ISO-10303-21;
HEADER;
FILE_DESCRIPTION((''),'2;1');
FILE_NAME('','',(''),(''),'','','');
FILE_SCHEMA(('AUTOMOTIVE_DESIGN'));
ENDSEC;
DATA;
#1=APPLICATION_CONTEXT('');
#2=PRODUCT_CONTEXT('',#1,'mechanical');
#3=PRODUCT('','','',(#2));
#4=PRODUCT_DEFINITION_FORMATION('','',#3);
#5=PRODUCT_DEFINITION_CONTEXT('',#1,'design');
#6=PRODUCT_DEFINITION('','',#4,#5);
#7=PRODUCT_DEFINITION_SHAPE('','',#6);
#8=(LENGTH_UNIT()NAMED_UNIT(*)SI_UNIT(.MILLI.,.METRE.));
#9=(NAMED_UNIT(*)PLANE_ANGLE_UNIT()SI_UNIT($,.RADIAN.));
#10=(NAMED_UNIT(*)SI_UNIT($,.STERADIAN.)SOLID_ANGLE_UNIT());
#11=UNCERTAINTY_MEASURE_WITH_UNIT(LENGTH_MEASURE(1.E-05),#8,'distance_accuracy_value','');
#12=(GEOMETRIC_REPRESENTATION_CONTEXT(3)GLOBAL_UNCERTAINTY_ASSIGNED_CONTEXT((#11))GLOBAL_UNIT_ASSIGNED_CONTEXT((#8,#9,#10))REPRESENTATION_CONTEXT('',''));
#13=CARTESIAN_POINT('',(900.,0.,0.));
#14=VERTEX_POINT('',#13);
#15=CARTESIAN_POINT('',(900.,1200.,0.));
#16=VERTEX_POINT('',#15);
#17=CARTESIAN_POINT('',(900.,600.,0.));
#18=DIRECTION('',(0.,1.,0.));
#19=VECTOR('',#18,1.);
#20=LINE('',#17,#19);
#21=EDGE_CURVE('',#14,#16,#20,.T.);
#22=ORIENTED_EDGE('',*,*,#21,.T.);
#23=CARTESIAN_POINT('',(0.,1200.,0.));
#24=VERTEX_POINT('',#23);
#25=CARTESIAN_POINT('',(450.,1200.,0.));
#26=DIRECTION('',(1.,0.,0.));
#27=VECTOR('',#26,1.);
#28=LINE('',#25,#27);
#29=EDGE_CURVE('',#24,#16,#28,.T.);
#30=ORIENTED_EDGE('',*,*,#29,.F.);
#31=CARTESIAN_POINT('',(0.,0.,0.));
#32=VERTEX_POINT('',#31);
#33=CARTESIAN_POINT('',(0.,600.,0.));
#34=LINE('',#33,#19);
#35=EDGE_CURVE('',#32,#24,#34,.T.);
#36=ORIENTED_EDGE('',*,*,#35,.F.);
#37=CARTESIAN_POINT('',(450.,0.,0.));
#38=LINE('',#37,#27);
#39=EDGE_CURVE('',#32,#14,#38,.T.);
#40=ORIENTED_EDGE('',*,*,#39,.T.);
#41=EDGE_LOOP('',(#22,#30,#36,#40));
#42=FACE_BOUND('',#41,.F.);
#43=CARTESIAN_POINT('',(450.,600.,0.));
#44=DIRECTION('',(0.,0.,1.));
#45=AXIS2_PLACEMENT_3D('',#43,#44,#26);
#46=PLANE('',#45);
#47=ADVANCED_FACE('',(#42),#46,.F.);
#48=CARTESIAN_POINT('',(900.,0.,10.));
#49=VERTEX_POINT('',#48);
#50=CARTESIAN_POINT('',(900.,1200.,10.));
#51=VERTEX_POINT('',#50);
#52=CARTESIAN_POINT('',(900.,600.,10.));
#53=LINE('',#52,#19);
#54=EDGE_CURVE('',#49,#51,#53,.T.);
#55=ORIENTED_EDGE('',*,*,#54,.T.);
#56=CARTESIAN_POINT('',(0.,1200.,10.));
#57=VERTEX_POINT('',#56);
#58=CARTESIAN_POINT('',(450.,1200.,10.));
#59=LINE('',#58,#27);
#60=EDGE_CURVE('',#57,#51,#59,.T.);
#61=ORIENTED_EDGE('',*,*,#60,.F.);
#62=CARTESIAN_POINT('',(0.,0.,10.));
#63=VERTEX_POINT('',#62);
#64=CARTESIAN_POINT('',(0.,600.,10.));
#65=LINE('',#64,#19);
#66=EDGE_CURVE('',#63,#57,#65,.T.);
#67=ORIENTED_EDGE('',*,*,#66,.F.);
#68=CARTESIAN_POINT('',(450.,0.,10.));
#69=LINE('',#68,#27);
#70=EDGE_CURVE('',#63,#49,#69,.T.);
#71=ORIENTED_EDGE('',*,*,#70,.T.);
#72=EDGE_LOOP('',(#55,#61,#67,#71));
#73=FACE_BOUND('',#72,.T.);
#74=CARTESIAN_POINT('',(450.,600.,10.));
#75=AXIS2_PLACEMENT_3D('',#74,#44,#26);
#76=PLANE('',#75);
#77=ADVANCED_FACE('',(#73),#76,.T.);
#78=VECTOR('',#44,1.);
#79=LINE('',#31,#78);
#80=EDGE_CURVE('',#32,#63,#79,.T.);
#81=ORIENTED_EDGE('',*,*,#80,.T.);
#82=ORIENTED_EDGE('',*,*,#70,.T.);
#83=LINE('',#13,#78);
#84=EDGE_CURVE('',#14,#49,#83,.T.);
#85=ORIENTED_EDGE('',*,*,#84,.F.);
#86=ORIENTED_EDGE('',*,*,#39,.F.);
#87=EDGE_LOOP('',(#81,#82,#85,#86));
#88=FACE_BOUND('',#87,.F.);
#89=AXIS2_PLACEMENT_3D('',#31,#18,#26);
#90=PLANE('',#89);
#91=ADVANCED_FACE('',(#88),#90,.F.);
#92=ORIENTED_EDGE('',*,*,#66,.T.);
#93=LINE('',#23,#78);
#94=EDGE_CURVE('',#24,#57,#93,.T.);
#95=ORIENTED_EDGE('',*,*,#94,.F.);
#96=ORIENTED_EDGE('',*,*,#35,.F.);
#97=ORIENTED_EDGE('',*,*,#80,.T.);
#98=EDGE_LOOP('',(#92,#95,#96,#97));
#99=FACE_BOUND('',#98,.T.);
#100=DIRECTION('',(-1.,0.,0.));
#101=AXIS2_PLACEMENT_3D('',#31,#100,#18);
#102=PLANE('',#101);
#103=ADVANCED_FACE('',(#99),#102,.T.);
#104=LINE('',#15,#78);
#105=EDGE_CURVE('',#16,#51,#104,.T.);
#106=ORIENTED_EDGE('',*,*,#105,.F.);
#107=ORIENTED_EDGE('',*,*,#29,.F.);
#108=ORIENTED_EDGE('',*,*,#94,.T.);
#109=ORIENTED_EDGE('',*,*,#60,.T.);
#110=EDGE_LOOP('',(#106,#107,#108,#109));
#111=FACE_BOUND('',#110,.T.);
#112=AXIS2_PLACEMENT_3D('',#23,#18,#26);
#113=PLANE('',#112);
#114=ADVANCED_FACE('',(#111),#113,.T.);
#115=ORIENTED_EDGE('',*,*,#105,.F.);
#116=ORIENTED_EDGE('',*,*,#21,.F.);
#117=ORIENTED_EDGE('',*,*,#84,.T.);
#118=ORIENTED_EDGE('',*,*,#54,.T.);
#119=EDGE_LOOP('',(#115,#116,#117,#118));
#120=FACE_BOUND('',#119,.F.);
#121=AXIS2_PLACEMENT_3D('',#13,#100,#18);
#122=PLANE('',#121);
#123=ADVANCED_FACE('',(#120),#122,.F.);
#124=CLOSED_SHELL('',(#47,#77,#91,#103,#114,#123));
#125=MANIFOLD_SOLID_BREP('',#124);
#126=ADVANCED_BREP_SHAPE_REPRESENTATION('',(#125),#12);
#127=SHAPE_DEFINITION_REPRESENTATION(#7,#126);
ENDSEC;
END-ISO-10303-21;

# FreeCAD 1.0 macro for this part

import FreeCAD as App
import Part
import Sketcher
from FreeCAD import Vector
Q = App.Units.Quantity

doc = App.newDocument("Part")
body = doc.addObject("PartDesign::Body", "Body")

# Sketch on XY plane
sketch1 = body.newObject("Sketcher::SketchObject", "Sketch")
sketch1.AttachmentSupport = (doc.getObject("XY_Plane"), [""])
sketch1.MapMode = "FlatFace"
sketch1.addGeometry(Part.LineSegment(Vector(0, 1200, 0), Vector(0, 0, 0)), False)
sketch1.addGeometry(Part.LineSegment(Vector(0, 0, 0), Vector(900, 0, 0)), False)
sketch1.addGeometry(Part.LineSegment(Vector(900, 0, 0), Vector(900, 1200, 0)), False)
sketch1.addGeometry(Part.LineSegment(Vector(900, 1200, 0), Vector(0, 1200, 0)), False)
sketch1.addConstraint(Sketcher.Constraint("Coincident", 0, 2, 1, 1))
sketch1.addConstraint(Sketcher.Constraint("Coincident", 1, 2, 2, 1))
sketch1.addConstraint(Sketcher.Constraint("Coincident", 2, 2, 3, 1))
sketch1.addConstraint(Sketcher.Constraint("Coincident", 3, 2, 0, 1))
sketch1.addConstraint(Sketcher.Constraint("Vertical", 0))
sketch1.addConstraint(Sketcher.Constraint("Horizontal", 1))
sketch1.addConstraint(Sketcher.Constraint("Vertical", 2))
sketch1.addConstraint(Sketcher.Constraint("Horizontal", 3))
sketch1.addConstraint(Sketcher.Constraint("Coincident", 0, 2, -1, 1))
sketch1.addConstraint(Sketcher.Constraint("DistanceX", 1, 1, 1, 2, Q("900 mm")))
sketch1.addConstraint(Sketcher.Constraint("DistanceY", 0, 2, 0, 1, Q("1200 mm")))
pad1 = body.newObject("PartDesign::Pad", "Pad")
pad1.Profile = sketch1
pad1.Length = 10

doc.recompute()
